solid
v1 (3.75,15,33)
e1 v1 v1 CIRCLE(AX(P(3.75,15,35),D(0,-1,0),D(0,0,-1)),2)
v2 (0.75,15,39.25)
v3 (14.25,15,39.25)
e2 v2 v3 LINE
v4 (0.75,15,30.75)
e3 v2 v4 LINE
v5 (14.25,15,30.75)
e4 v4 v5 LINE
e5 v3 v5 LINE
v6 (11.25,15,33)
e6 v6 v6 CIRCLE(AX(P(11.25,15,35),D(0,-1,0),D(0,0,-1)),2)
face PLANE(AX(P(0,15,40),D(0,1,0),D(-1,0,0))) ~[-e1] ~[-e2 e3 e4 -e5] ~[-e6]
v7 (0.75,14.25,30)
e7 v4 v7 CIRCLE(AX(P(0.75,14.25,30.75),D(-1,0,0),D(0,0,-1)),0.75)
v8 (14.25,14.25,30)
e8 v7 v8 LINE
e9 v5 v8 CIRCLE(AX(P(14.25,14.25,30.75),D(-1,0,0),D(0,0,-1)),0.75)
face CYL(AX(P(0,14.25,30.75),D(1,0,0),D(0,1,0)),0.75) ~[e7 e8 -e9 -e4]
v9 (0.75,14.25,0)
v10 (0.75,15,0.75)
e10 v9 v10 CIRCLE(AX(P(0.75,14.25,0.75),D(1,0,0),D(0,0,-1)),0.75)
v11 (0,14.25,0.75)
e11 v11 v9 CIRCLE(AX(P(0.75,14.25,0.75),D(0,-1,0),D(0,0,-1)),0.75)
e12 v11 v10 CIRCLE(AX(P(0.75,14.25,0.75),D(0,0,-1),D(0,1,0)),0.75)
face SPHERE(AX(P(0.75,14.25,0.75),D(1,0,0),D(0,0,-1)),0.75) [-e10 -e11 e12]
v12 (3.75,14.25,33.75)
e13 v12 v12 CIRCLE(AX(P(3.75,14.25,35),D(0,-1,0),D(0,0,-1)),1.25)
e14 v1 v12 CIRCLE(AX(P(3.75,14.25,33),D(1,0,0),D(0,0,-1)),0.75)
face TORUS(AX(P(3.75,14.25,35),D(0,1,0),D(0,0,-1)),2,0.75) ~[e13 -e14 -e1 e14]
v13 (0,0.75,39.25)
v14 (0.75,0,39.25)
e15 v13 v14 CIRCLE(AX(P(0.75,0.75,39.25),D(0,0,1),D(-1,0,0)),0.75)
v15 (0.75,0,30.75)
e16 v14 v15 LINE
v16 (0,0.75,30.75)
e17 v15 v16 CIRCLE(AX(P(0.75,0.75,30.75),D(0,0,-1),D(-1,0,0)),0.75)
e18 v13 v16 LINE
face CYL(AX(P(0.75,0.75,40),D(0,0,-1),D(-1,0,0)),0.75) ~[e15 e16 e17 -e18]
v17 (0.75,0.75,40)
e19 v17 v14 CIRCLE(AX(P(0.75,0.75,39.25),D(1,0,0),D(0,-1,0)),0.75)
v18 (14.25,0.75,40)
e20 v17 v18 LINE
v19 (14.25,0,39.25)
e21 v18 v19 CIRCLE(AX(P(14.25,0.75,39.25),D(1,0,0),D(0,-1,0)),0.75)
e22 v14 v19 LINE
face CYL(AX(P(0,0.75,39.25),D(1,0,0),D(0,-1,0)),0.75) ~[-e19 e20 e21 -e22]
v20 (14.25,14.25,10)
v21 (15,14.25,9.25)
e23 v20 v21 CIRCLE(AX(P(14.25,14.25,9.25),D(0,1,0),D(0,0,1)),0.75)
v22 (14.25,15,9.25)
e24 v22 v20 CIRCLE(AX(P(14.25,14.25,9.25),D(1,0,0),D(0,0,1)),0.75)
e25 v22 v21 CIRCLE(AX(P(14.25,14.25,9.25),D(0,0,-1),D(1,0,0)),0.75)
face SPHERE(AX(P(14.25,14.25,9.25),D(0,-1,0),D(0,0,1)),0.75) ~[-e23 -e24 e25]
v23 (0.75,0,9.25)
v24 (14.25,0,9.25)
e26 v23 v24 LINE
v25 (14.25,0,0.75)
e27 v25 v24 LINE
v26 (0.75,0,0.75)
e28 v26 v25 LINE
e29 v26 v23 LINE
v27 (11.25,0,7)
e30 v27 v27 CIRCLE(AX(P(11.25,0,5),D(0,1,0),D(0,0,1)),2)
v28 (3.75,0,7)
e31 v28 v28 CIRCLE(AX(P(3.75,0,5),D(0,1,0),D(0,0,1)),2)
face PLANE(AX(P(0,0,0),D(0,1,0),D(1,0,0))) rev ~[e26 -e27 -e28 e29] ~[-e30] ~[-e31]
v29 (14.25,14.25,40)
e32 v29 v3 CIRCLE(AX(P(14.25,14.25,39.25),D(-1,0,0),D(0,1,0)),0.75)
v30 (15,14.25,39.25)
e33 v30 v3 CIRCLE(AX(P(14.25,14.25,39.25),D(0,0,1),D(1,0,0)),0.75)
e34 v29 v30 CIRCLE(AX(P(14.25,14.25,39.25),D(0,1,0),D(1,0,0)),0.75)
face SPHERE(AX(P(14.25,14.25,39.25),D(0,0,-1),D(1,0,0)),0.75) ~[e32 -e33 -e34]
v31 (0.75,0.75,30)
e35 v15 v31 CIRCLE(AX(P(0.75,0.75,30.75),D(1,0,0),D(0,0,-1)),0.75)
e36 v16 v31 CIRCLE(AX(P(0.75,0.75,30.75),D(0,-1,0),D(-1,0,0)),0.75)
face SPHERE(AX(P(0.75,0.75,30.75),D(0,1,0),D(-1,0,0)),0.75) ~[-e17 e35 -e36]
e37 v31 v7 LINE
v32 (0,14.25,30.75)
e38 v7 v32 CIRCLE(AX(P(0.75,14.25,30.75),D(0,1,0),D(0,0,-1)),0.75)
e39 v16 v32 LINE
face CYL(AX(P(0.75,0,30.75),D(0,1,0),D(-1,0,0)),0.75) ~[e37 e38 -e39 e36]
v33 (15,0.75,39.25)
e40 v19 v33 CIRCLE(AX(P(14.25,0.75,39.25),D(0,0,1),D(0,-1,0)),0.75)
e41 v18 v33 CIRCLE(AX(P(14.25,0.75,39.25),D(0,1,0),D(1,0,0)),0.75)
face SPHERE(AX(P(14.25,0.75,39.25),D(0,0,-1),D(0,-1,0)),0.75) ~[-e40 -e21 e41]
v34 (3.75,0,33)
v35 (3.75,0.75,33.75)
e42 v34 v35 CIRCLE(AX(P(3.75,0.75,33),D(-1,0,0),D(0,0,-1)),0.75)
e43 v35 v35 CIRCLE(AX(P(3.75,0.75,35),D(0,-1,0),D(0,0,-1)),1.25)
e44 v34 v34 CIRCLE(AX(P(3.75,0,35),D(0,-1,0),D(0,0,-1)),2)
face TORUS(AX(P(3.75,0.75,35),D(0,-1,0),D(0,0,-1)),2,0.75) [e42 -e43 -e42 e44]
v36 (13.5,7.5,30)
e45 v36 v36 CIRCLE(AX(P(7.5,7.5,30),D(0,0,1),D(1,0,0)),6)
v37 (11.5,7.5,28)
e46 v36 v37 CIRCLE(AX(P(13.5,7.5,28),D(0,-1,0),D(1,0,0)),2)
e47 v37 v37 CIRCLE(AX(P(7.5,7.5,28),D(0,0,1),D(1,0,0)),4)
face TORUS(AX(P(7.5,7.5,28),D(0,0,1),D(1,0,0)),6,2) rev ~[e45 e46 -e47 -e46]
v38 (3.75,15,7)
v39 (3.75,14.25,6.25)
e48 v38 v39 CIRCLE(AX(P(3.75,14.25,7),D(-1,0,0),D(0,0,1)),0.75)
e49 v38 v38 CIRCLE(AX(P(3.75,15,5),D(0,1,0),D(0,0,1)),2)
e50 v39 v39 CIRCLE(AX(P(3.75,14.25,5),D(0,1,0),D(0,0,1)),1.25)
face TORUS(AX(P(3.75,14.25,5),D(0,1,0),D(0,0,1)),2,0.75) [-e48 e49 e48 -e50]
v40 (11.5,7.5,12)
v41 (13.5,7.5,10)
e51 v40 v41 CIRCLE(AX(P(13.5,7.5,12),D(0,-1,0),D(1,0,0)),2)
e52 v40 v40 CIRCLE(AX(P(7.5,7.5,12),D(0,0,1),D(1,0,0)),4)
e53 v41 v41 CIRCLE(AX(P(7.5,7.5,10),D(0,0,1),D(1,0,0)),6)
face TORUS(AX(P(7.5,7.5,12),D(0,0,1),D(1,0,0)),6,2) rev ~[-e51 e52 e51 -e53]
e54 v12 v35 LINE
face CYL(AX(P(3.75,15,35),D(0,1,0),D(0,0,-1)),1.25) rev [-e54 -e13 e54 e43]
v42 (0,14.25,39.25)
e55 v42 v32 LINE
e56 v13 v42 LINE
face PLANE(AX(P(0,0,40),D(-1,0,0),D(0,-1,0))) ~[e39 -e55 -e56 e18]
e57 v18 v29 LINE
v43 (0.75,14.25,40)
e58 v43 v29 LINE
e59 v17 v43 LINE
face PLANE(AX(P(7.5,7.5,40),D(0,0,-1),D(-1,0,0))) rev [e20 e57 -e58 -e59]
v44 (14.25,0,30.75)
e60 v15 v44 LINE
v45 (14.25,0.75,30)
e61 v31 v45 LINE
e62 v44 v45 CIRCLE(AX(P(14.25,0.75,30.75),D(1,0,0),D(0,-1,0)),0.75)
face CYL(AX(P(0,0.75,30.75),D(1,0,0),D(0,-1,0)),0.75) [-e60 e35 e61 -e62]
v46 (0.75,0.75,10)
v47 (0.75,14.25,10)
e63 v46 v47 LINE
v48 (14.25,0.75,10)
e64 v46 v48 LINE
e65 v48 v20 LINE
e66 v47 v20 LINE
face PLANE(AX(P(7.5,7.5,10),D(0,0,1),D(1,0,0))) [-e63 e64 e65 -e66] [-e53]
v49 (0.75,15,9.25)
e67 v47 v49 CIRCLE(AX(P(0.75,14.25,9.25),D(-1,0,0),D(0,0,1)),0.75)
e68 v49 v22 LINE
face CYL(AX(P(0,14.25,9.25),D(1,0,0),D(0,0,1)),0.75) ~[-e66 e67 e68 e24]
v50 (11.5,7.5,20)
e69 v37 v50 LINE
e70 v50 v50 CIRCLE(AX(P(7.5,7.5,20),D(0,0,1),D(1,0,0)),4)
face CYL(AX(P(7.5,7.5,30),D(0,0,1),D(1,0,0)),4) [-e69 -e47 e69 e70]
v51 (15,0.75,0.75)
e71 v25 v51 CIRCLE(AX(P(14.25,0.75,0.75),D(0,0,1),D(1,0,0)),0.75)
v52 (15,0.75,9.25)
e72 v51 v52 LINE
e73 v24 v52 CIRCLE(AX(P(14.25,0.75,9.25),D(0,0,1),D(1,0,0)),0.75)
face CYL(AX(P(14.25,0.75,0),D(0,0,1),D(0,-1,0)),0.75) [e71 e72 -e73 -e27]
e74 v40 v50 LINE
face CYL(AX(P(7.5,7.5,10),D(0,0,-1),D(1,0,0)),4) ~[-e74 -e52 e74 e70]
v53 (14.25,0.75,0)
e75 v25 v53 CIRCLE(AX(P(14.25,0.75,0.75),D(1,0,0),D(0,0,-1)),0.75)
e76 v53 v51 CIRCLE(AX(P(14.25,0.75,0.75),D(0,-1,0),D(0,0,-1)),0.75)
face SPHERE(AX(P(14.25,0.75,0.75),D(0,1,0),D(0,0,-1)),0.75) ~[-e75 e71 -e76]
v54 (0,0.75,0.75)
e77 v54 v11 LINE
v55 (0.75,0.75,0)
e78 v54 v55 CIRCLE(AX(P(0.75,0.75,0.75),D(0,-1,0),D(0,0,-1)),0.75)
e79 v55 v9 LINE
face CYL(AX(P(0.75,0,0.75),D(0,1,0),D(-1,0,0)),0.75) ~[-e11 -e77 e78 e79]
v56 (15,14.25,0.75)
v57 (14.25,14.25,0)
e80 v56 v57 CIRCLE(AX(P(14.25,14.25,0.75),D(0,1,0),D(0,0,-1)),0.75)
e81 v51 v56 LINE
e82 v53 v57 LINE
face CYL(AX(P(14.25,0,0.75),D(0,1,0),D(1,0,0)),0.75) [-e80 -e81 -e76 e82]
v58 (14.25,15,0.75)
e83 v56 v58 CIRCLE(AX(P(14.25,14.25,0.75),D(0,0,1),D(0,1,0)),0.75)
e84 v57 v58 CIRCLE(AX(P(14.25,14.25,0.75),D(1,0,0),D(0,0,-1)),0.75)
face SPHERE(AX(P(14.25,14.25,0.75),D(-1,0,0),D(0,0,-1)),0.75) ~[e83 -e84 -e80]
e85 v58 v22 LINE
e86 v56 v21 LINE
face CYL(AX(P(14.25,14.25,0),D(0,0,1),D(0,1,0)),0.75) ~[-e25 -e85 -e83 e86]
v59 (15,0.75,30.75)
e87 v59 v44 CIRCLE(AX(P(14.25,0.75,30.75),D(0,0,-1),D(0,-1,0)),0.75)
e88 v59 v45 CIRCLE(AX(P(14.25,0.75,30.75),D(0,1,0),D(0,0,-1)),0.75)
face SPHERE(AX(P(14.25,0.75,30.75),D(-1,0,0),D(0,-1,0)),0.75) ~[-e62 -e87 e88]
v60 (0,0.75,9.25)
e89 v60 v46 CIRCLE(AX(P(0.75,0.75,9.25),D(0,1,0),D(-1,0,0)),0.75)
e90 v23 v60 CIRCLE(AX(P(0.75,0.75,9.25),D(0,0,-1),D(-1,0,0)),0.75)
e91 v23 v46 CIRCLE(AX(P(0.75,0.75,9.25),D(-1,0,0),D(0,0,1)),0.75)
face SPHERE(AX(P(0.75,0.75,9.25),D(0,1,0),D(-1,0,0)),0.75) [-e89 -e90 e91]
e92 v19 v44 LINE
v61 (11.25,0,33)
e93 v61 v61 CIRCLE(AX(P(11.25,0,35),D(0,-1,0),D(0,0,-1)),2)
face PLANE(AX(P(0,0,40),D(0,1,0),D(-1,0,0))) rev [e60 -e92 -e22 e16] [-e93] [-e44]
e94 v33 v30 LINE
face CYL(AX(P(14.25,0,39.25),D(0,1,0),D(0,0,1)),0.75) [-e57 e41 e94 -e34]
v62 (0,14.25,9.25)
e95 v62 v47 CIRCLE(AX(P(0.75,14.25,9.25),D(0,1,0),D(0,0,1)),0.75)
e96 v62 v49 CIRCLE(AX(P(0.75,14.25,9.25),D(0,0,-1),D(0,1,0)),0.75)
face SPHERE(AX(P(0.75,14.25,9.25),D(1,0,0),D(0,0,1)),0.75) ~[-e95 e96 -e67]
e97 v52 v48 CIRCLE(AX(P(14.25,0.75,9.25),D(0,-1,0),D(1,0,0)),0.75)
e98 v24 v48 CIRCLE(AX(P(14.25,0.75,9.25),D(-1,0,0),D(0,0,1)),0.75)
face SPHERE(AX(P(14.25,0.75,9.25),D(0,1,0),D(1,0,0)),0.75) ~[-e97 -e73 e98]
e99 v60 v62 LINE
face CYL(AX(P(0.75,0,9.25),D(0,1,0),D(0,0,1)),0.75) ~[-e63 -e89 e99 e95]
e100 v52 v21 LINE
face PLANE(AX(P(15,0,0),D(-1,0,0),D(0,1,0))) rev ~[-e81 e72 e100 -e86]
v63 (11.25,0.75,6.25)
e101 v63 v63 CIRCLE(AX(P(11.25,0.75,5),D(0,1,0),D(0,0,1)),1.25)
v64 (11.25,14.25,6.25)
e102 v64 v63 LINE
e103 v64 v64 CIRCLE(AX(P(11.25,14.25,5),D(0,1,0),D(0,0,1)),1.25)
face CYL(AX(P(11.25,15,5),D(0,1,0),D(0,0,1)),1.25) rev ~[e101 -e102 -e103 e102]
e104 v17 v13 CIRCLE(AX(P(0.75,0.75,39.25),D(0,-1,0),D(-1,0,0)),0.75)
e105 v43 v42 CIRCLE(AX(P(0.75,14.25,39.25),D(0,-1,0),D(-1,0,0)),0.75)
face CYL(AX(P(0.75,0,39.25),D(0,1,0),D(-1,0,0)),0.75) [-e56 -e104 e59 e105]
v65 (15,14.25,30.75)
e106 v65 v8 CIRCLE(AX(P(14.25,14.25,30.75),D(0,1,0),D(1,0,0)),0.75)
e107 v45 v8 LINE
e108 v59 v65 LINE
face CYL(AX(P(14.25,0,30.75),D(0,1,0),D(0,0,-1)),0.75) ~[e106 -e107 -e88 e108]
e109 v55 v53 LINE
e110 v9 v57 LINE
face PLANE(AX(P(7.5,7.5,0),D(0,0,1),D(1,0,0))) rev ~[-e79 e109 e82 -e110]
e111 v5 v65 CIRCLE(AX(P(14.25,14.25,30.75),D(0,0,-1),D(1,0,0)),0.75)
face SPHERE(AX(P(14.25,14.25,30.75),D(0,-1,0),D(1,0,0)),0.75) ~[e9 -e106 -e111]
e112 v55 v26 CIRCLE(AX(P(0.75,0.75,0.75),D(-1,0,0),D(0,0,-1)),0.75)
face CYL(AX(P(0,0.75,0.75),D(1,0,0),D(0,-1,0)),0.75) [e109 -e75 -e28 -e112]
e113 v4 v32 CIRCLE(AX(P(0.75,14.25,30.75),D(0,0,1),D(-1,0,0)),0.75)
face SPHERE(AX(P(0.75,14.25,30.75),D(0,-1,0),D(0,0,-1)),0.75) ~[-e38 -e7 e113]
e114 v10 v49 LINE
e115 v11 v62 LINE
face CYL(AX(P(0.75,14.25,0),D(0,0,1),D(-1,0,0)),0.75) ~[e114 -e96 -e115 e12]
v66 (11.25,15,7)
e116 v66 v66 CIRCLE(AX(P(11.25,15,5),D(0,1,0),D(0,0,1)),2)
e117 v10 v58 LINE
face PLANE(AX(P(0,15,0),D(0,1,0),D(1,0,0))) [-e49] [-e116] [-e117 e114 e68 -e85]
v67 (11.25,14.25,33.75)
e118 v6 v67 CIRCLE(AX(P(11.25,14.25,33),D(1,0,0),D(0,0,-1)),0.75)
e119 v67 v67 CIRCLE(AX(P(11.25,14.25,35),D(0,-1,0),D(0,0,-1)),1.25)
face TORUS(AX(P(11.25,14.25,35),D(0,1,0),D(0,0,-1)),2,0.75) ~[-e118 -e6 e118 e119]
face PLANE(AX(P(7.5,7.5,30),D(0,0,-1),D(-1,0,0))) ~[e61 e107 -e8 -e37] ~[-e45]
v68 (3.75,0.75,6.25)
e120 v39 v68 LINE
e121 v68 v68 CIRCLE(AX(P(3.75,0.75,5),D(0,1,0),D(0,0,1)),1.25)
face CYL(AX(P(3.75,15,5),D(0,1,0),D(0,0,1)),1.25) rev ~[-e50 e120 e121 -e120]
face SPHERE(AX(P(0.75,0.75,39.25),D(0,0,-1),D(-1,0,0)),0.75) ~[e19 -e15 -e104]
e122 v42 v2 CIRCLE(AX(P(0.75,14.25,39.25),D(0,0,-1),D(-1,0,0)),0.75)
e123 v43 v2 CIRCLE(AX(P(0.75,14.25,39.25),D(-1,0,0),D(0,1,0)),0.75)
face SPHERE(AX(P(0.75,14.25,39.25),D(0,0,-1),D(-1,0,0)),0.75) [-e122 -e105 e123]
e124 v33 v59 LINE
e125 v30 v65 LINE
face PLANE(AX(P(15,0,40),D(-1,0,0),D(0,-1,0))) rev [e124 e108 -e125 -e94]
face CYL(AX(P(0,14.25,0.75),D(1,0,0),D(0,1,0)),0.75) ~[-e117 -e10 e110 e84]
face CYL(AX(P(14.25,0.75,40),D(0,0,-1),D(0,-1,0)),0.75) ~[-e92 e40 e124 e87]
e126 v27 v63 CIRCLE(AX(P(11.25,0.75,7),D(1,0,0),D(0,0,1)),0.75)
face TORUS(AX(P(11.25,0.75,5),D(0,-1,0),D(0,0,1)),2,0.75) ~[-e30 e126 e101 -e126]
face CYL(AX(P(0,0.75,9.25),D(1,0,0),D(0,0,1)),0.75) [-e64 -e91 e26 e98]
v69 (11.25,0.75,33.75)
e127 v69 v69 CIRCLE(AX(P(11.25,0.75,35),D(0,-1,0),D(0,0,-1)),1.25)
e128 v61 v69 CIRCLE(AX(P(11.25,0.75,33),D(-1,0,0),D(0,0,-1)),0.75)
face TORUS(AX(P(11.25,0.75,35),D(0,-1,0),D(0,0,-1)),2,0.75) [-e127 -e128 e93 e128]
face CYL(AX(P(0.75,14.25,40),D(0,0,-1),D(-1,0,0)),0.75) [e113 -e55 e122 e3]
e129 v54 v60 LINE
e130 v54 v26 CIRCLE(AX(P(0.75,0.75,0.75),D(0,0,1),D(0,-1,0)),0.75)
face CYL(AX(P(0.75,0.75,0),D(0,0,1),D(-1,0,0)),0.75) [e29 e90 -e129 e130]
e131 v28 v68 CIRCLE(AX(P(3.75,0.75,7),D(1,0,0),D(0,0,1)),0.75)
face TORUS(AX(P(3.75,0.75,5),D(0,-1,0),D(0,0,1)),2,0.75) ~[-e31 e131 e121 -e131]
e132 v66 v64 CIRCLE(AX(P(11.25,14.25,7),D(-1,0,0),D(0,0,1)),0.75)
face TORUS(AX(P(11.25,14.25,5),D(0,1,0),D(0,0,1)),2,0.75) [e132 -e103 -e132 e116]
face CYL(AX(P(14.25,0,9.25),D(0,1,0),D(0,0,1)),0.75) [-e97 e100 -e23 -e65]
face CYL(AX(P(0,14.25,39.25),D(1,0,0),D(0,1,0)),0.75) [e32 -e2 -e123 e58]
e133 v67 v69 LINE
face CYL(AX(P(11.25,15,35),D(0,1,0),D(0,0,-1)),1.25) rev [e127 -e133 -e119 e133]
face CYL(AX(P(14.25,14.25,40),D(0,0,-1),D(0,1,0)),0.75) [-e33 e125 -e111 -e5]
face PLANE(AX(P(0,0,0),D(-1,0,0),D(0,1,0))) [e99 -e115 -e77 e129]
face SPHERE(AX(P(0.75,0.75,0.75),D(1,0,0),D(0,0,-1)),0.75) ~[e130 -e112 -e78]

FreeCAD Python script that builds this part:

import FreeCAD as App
import Part
import Sketcher


def edges_at(feature, points):
    """Names of the edges that pass closest to the given points."""
    edges = feature.Shape.Edges
    near = lambda p: min(range(len(edges)), key=lambda i: edges[i].distToShape(Part.Vertex(*p))[0])
    return sorted({f"Edge{near(p) + 1}" for p in points})


def add_polygon(sketch, points):
    """Adds a closed chain of lines whose ends are joined by coincident constraints."""
    first, n = sketch.GeometryCount, len(points)
    for a, b in zip(points, points[1:] + points[:1]):
        sketch.addGeometry(Part.LineSegment(App.Vector(*a, 0), App.Vector(*b, 0)), False)
    for i in range(n):
        sketch.addConstraint(Sketcher.Constraint("Coincident", first + i, 2, first + (i + 1) % n, 1))

doc = App.newDocument("Part")
body = doc.addObject("PartDesign::Body", "Body")

# Sketch on XY plane
sketch1 = body.newObject("Sketcher::SketchObject", "Sketch")
sketch1.AttachmentSupport = (doc.getObject("XY_Plane"), [""])
sketch1.MapMode = "FlatFace"
add_polygon(sketch1, [(0, 15), (0, 0), (15, 0), (15, 15)])  # lines 0-3
sketch1.addConstraint([
    Sketcher.Constraint("Vertical", 0),
    Sketcher.Constraint("Horizontal", 1),
    Sketcher.Constraint("Vertical", 2),
    Sketcher.Constraint("Horizontal", 3),
    Sketcher.Constraint("Coincident", 0, 2, -1, 1),
    Sketcher.Constraint("Equal", 3, 0),
    Sketcher.Constraint("DistanceX", 1, 1, 1, 2, 15.0),
])
pad1 = body.newObject("PartDesign::Pad", "Pad")
pad1.Profile = sketch1
pad1.Length = 10

# Sketch on XY plane
sketch2 = body.newObject("Sketcher::SketchObject", "Sketch001")
sketch2.AttachmentSupport = (doc.getObject("XY_Plane"), [""])
sketch2.MapMode = "FlatFace"
sketch2.AttachmentOffset = App.Placement(App.Vector(0, 0, 10), App.Rotation())
sketch2.addGeometry(Part.Circle(App.Vector(7.5, 7.5, 0), App.Vector(0, 0, 1), 4), False)
sketch2.addConstraint([
    Sketcher.Constraint("Diameter", 0, 8.0),
    Sketcher.Constraint("DistanceX", -1, 1, 0, 3, 7.5),
    Sketcher.Constraint("DistanceY", -1, 1, 0, 3, 7.5),
])
pad2 = body.newObject("PartDesign::Pad", "Pad001")
pad2.Profile = sketch2
pad2.Length = 10

# Sketch on XZ plane
sketch3 = body.newObject("Sketcher::SketchObject", "Sketch002")
sketch3.AttachmentSupport = (doc.getObject("XZ_Plane"), [""])
sketch3.MapMode = "FlatFace"
sketch3.AttachmentOffset = App.Placement(App.Vector(0, 0, -15), App.Rotation())
sketch3.addGeometry([
    Part.Circle(App.Vector(3.75, 5, 0), App.Vector(0, 0, 1), 1.25),
    Part.Circle(App.Vector(11.25, 5, 0), App.Vector(0, 0, 1), 1.25),
], False)
sketch3.addConstraint([
    Sketcher.Constraint("Equal", 0, 1),
    Sketcher.Constraint("Horizontal", 0, 3, 1, 3),
    Sketcher.Constraint("Diameter", 0, 2.5),
    Sketcher.Constraint("DistanceY", -1, 1, 0, 3, 5.0),
    Sketcher.Constraint("DistanceX", 0, 3, 1, 3, 7.5),
    Sketcher.Constraint("DistanceX", -1, 1, 0, 3, 3.75),
])
pocket1 = body.newObject("PartDesign::Pocket", "Pocket")
pocket1.Profile = sketch3
pocket1.Type = "ThroughAll"
pocket1.Reversed = True
body2 = doc.addObject("PartDesign::Body", "Body001")
doc.recompute()

body2.BaseFeature = body
doc.recompute()

mirroring = doc.addObject("Part::Mirroring", "Mirroring")
mirroring.Source = body
mirroring.Base = App.Vector(7.5, 7.5, 20)
mirroring.Normal = App.Vector(0, 0, 1)
body3 = doc.addObject("PartDesign::Body", "Body002")
body3.BaseFeature = mirroring
boolean = body2.newObject("PartDesign::Boolean", "Boolean")
boolean.Type = "Fuse"
boolean.addObjects([body3])
doc.recompute()

fillet = body2.newObject("PartDesign::Fillet", "Fillet")
fillet.Base = (boolean, edges_at(boolean, [
    (15, 7.5, 10),
    (7.5, 15, 10),
    (3.75, 0, 3.75),
    (3.75, 15, 3.75),
    (11.25, 0, 3.75),
    (11.25, 15, 3.75),
    (0, 7.5, 30),
    (0, 0, 35),
    (7.5, 0, 30),
    (15, 0, 35),
    (15, 7.5, 30),
    (15, 15, 35),
    (3.75, 15, 36.25),
    (11.25, 15, 36.25),
    (7.5, 15, 30),
    (0, 15, 35),
    (0, 7.5, 40),
    (7.5, 0, 40),
    (15, 7.5, 40),
    (7.5, 15, 40),
    (11.25, 0, 36.25),
    (3.75, 0, 36.25),
    (0, 7.5, 10),
    (7.5, 15, 0),
    (15, 7.5, 0),
    (7.5, 0, 0),
    (0, 7.5, 0),
    (0, 15, 5),
    (15, 15, 5),
    (15, 0, 5),
    (0, 0, 5),
    (7.5, 0, 10),
]))
fillet.Radius = 0.75
doc.recompute()

fillet2 = body2.newObject("PartDesign::Fillet", "Fillet001")
fillet2.Base = (fillet, edges_at(fillet, [(3.5, 7.5, 10), (3.5, 7.5, 30)]))
fillet2.Radius = 2
mirroring.Visibility = False

doc.recompute()
